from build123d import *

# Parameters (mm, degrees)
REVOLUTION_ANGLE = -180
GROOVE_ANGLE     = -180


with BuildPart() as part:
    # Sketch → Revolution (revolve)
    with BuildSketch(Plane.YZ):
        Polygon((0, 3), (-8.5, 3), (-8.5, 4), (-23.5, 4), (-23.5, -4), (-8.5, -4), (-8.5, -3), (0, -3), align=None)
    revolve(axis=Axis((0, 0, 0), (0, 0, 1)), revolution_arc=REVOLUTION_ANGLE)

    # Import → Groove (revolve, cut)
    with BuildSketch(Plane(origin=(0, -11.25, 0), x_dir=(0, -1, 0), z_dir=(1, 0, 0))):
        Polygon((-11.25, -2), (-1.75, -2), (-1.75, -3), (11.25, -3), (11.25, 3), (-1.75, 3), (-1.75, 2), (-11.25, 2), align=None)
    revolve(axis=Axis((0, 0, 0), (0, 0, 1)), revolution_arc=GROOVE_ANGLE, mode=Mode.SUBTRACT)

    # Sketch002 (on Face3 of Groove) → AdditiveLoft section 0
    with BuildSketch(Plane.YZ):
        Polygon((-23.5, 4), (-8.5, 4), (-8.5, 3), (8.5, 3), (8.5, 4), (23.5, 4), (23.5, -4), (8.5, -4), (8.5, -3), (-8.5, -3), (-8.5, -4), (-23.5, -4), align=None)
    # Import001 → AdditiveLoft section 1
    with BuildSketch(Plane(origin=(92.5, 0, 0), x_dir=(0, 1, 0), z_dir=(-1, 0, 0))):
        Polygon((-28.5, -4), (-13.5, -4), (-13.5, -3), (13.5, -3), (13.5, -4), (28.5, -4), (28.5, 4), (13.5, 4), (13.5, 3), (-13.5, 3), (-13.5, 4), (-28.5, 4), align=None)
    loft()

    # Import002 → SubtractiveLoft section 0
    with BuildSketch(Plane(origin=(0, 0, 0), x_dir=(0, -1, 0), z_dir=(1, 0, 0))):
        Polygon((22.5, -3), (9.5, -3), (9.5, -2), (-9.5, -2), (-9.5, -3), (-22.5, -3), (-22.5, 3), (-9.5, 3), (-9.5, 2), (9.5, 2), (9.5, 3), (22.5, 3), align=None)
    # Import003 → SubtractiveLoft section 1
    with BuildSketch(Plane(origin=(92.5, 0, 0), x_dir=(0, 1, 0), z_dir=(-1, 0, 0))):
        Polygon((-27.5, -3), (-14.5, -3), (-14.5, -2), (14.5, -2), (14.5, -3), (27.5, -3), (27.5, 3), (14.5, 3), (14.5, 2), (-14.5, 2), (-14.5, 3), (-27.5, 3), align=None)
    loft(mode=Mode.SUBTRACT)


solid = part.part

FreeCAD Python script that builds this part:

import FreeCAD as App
import Part
import Sketcher
Q = App.Units.Quantity

doc = App.newDocument("Part")
body = doc.addObject("PartDesign::Body", "Body")

sketch1 = body.newObject("Sketcher::SketchObject", "Sketch")
sketch1.AttachmentSupport = (doc.getObject("YZ_Plane"), [""])
sketch1.MapMode = "FlatFace"
sketch1.addGeometry([
    Part.LineSegment(App.Vector(0, 3, 0), App.Vector(-8.5, 3, 0)),
    Part.LineSegment(App.Vector(-8.5, 3, 0), App.Vector(-8.5, 4, 0)),
    Part.LineSegment(App.Vector(-8.5, 4, 0), App.Vector(-23.5, 4, 0)),
    Part.LineSegment(App.Vector(-23.5, 4, 0), App.Vector(-23.5, -4, 0)),
    Part.LineSegment(App.Vector(-23.5, -4, 0), App.Vector(-8.5, -4, 0)),
    Part.LineSegment(App.Vector(-8.5, -4, 0), App.Vector(-8.5, -3, 0)),
    Part.LineSegment(App.Vector(-8.5, -3, 0), App.Vector(0, -3, 0)),
    Part.LineSegment(App.Vector(0, -3, 0), App.Vector(0, 3, 0)),
], False)
sketch1.addConstraint([
    Sketcher.Constraint("Coincident", 0, 2, 1, 1),
    Sketcher.Constraint("Coincident", 1, 2, 2, 1),
    Sketcher.Constraint("Coincident", 2, 2, 3, 1),
    Sketcher.Constraint("Coincident", 3, 2, 4, 1),
    Sketcher.Constraint("Coincident", 4, 2, 5, 1),
    Sketcher.Constraint("Coincident", 5, 2, 6, 1),
    Sketcher.Constraint("Coincident", 6, 2, 7, 1),
    Sketcher.Constraint("Coincident", 7, 2, 0, 1),
    Sketcher.Constraint("Horizontal", 0),
    Sketcher.Constraint("Vertical", 1),
    Sketcher.Constraint("Horizontal", 2),
    Sketcher.Constraint("Vertical", 3),
    Sketcher.Constraint("Horizontal", 4),
    Sketcher.Constraint("Vertical", 5),
    Sketcher.Constraint("Horizontal", 6),
    Sketcher.Constraint("Vertical", 7),
    Sketcher.Constraint("Symmetric", 6, 2, 7, 2, -1, 1),
    Sketcher.Constraint("Symmetric", 1, 2, 4, 2, -1),
    Sketcher.Constraint("DistanceX", 2, 2, 2, 1, Q("15 mm")),
    Sketcher.Constraint("DistanceY", 1, 1, 1, 2, Q("1 mm")),
    Sketcher.Constraint("DistanceY", 3, 2, 3, 1, Q("8 mm")),
    Sketcher.Constraint("DistanceX", 0, 2, 0, 1, Q("8.5 mm")),
])
revolution = body.newObject("PartDesign::Revolution", "Revolution")
revolution.Profile = sketch1
revolution.ReferenceAxis = (sketch1, ["V_Axis"])
revolution.Angle = 180
revolution.Reversed = True

sketch2 = body.newObject("Sketcher::SketchObject", "Sketch001")
sketch2.AttachmentSupport = (doc.getObject("YZ_Plane"), [""])
sketch2.MapMode = "FlatFace"
sketch2.addGeometry([
    Part.LineSegment(App.Vector(0, 2, 0), App.Vector(-9.5, 2, 0)),
    Part.LineSegment(App.Vector(-9.5, 2, 0), App.Vector(-9.5, 3, 0)),
    Part.LineSegment(App.Vector(-9.5, 3, 0), App.Vector(-22.5, 3, 0)),
    Part.LineSegment(App.Vector(-22.5, 3, 0), App.Vector(-22.5, -3, 0)),
    Part.LineSegment(App.Vector(-22.5, -3, 0), App.Vector(-9.5, -3, 0)),
    Part.LineSegment(App.Vector(-9.5, -3, 0), App.Vector(-9.5, -2, 0)),
    Part.LineSegment(App.Vector(-9.5, -2, 0), App.Vector(0, -2, 0)),
    Part.LineSegment(App.Vector(0, -2, 0), App.Vector(0, 2, 0)),
], False)
sketch2.addConstraint([
    Sketcher.Constraint("Coincident", 0, 2, 1, 1),
    Sketcher.Constraint("Coincident", 1, 2, 2, 1),
    Sketcher.Constraint("Coincident", 2, 2, 3, 1),
    Sketcher.Constraint("Coincident", 3, 2, 4, 1),
    Sketcher.Constraint("Coincident", 4, 2, 5, 1),
    Sketcher.Constraint("Coincident", 5, 2, 6, 1),
    Sketcher.Constraint("Coincident", 6, 2, 7, 1),
    Sketcher.Constraint("Coincident", 7, 2, 0, 1),
    Sketcher.Constraint("Horizontal", 0),
    Sketcher.Constraint("Vertical", 1),
    Sketcher.Constraint("Horizontal", 2),
    Sketcher.Constraint("Vertical", 3),
    Sketcher.Constraint("Horizontal", 4),
    Sketcher.Constraint("Vertical", 5),
    Sketcher.Constraint("Horizontal", 6),
    Sketcher.Constraint("Vertical", 7),
    Sketcher.Constraint("Symmetric", 6, 2, 7, 2, -1, 1),
    Sketcher.Constraint("Symmetric", 1, 2, 4, 2, -1),
    Sketcher.Constraint("DistanceX", 2, 2, 2, 1, Q("13 mm")),
    Sketcher.Constraint("DistanceY", 1, 1, 1, 2, Q("1 mm")),
    Sketcher.Constraint("DistanceY", 3, 2, 3, 1, Q("6 mm")),
    Sketcher.Constraint("DistanceX", 0, 2, 0, 1, Q("9.5 mm")),
])
groove = body.newObject("PartDesign::Groove", "Groove")
groove.Profile = sketch2
groove.ReferenceAxis = (sketch2, ["V_Axis"])
groove.Angle = 180
groove.Reversed = True

sketch3 = body.newObject("Sketcher::SketchObject", "Sketch002")
sketch3.AttachmentSupport = (doc.getObject("YZ_Plane"), [""])
sketch3.MapMode = "FlatFace"
sketch3.addGeometry([
    Part.LineSegment(App.Vector(-8.5, 4, 0), App.Vector(-23.5, 4, 0)),
    Part.LineSegment(App.Vector(-23.5, 4, 0), App.Vector(-23.5, -4, 0)),
    Part.LineSegment(App.Vector(-23.5, -4, 0), App.Vector(-8.5, -4, 0)),
    Part.LineSegment(App.Vector(-8.5, -4, 0), App.Vector(-8.5, -3, 0)),
    Part.LineSegment(App.Vector(-8.5, -3, 0), App.Vector(8.5, -3, 0)),
    Part.LineSegment(App.Vector(8.5, -3, 0), App.Vector(8.5, -4, 0)),
    Part.LineSegment(App.Vector(8.5, -4, 0), App.Vector(23.5, -4, 0)),
    Part.LineSegment(App.Vector(23.5, -4, 0), App.Vector(23.5, 4, 0)),
    Part.LineSegment(App.Vector(23.5, 4, 0), App.Vector(8.5, 4, 0)),
    Part.LineSegment(App.Vector(8.5, 4, 0), App.Vector(8.5, 3, 0)),
    Part.LineSegment(App.Vector(8.5, 3, 0), App.Vector(-8.5, 3, 0)),
    Part.LineSegment(App.Vector(-8.5, 3, 0), App.Vector(-8.5, 4, 0)),
], False)
sketch3.addConstraint([
    Sketcher.Constraint("Coincident", 0, 2, 1, 1),
    Sketcher.Constraint("Coincident", 1, 2, 2, 1),
    Sketcher.Constraint("Coincident", 2, 2, 3, 1),
    Sketcher.Constraint("Coincident", 3, 2, 4, 1),
    Sketcher.Constraint("Coincident", 4, 2, 5, 1),
    Sketcher.Constraint("Coincident", 5, 2, 6, 1),
    Sketcher.Constraint("Coincident", 6, 2, 7, 1),
    Sketcher.Constraint("Coincident", 7, 2, 8, 1),
    Sketcher.Constraint("Coincident", 8, 2, 9, 1),
    Sketcher.Constraint("Coincident", 9, 2, 10, 1),
    Sketcher.Constraint("Coincident", 10, 2, 11, 1),
    Sketcher.Constraint("Coincident", 11, 2, 0, 1),
    Sketcher.Constraint("Horizontal", 0),
    Sketcher.Constraint("Vertical", 1),
    Sketcher.Constraint("Horizontal", 2),
    Sketcher.Constraint("Vertical", 3),
    Sketcher.Constraint("Horizontal", 4),
    Sketcher.Constraint("Vertical", 5),
    Sketcher.Constraint("Horizontal", 6),
    Sketcher.Constraint("Vertical", 7),
    Sketcher.Constraint("Horizontal", 8),
    Sketcher.Constraint("Vertical", 9),
    Sketcher.Constraint("Horizontal", 10),
    Sketcher.Constraint("Vertical", 11),
    Sketcher.Constraint("Symmetric", 0, 2, 6, 2, -1, 1),
    Sketcher.Constraint("Symmetric", 2, 2, 8, 2, -1, 1),
    Sketcher.Constraint("Symmetric", 4, 2, 10, 2, -1, 1),
    Sketcher.Constraint("Symmetric", 2, 2, 5, 2, -2),
    Sketcher.Constraint("DistanceX", 0, 2, 0, 1, Q("15 mm")),
    Sketcher.Constraint("DistanceX", 4, 1, 4, 2, Q("17 mm")),
    Sketcher.Constraint("DistanceY", 1, 2, 1, 1, Q("8 mm")),
    Sketcher.Constraint("DistanceY", 3, 1, 3, 2, Q("1 mm")),
])

sketch4 = body.newObject("Sketcher::SketchObject", "Sketch003")
sketch4.AttachmentSupport = (doc.getObject("YZ_Plane"), [""])
sketch4.MapMode = "FlatFace"
sketch4.AttachmentOffset = App.Placement(App.Vector(0, 0, 92.5), App.Rotation())
sketch4.addGeometry([
    Part.LineSegment(App.Vector(-28.5, 4, 0), App.Vector(-13.5, 4, 0)),
    Part.LineSegment(App.Vector(-13.5, 4, 0), App.Vector(-13.5, 3, 0)),
    Part.LineSegment(App.Vector(-13.5, 3, 0), App.Vector(13.5, 3, 0)),
    Part.LineSegment(App.Vector(13.5, 3, 0), App.Vector(13.5, 4, 0)),
    Part.LineSegment(App.Vector(13.5, 4, 0), App.Vector(28.5, 4, 0)),
    Part.LineSegment(App.Vector(28.5, 4, 0), App.Vector(28.5, -4, 0)),
    Part.LineSegment(App.Vector(28.5, -4, 0), App.Vector(13.5, -4, 0)),
    Part.LineSegment(App.Vector(13.5, -4, 0), App.Vector(13.5, -3, 0)),
    Part.LineSegment(App.Vector(13.5, -3, 0), App.Vector(-13.5, -3, 0)),
    Part.LineSegment(App.Vector(-13.5, -3, 0), App.Vector(-13.5, -4, 0)),
    Part.LineSegment(App.Vector(-13.5, -4, 0), App.Vector(-28.5, -4, 0)),
    Part.LineSegment(App.Vector(-28.5, -4, 0), App.Vector(-28.5, 4, 0)),
], False)
sketch4.addConstraint([
    Sketcher.Constraint("Coincident", 0, 2, 1, 1),
    Sketcher.Constraint("Coincident", 1, 2, 2, 1),
    Sketcher.Constraint("Coincident", 2, 2, 3, 1),
    Sketcher.Constraint("Coincident", 3, 2, 4, 1),
    Sketcher.Constraint("Coincident", 4, 2, 5, 1),
    Sketcher.Constraint("Coincident", 5, 2, 6, 1),
    Sketcher.Constraint("Coincident", 6, 2, 7, 1),
    Sketcher.Constraint("Coincident", 7, 2, 8, 1),
    Sketcher.Constraint("Coincident", 8, 2, 9, 1),
    Sketcher.Constraint("Coincident", 9, 2, 10, 1),
    Sketcher.Constraint("Coincident", 10, 2, 11, 1),
    Sketcher.Constraint("Coincident", 11, 2, 0, 1),
    Sketcher.Constraint("Horizontal", 0),
    Sketcher.Constraint("Vertical", 1),
    Sketcher.Constraint("Horizontal", 2),
    Sketcher.Constraint("Vertical", 3),
    Sketcher.Constraint("Horizontal", 4),
    Sketcher.Constraint("Vertical", 5),
    Sketcher.Constraint("Horizontal", 6),
    Sketcher.Constraint("Vertical", 7),
    Sketcher.Constraint("Horizontal", 8),
    Sketcher.Constraint("Vertical", 9),
    Sketcher.Constraint("Horizontal", 10),
    Sketcher.Constraint("Vertical", 11),
    Sketcher.Constraint("Symmetric", 0, 2, 6, 2, -1, 1),
    Sketcher.Constraint("Symmetric", 2, 2, 8, 2, -1, 1),
    Sketcher.Constraint("Symmetric", 4, 2, 10, 2, -1, 1),
    Sketcher.Constraint("Symmetric", 0, 2, 3, 2, -2),
    Sketcher.Constraint("DistanceX", 0, 1, 0, 2, Q("15 mm")),
    Sketcher.Constraint("DistanceX", 2, 1, 2, 2, Q("27 mm")),
    Sketcher.Constraint("DistanceY", 1, 2, 1, 1, Q("1 mm")),
    Sketcher.Constraint("DistanceY", 5, 2, 5, 1, Q("8 mm")),
])

additiveloft = body.newObject("PartDesign::AdditiveLoft", "AdditiveLoft")
additiveloft.Profile = sketch3
additiveloft.Sections = [sketch4]

sketch5 = body.newObject("Sketcher::SketchObject", "Sketch004")
sketch5.AttachmentSupport = (doc.getObject("YZ_Plane"), [""])
sketch5.MapMode = "FlatFace"
sketch5.addGeometry([
    Part.LineSegment(App.Vector(-9.5, 3, 0), App.Vector(-22.5, 3, 0)),
    Part.LineSegment(App.Vector(-22.5, 3, 0), App.Vector(-22.5, -3, 0)),
    Part.LineSegment(App.Vector(-22.5, -3, 0), App.Vector(-9.5, -3, 0)),
    Part.LineSegment(App.Vector(-9.5, -3, 0), App.Vector(-9.5, -2, 0)),
    Part.LineSegment(App.Vector(-9.5, -2, 0), App.Vector(9.5, -2, 0)),
    Part.LineSegment(App.Vector(9.5, -2, 0), App.Vector(9.5, -3, 0)),
    Part.LineSegment(App.Vector(9.5, -3, 0), App.Vector(22.5, -3, 0)),
    Part.LineSegment(App.Vector(22.5, -3, 0), App.Vector(22.5, 3, 0)),
    Part.LineSegment(App.Vector(22.5, 3, 0), App.Vector(9.5, 3, 0)),
    Part.LineSegment(App.Vector(9.5, 3, 0), App.Vector(9.5, 2, 0)),
    Part.LineSegment(App.Vector(9.5, 2, 0), App.Vector(-9.5, 2, 0)),
    Part.LineSegment(App.Vector(-9.5, 2, 0), App.Vector(-9.5, 3, 0)),
], False)
sketch5.addConstraint([
    Sketcher.Constraint("Coincident", 0, 2, 1, 1),
    Sketcher.Constraint("Coincident", 1, 2, 2, 1),
    Sketcher.Constraint("Coincident", 2, 2, 3, 1),
    Sketcher.Constraint("Coincident", 3, 2, 4, 1),
    Sketcher.Constraint("Coincident", 4, 2, 5, 1),
    Sketcher.Constraint("Coincident", 5, 2, 6, 1),
    Sketcher.Constraint("Coincident", 6, 2, 7, 1),
    Sketcher.Constraint("Coincident", 7, 2, 8, 1),
    Sketcher.Constraint("Coincident", 8, 2, 9, 1),
    Sketcher.Constraint("Coincident", 9, 2, 10, 1),
    Sketcher.Constraint("Coincident", 10, 2, 11, 1),
    Sketcher.Constraint("Coincident", 11, 2, 0, 1),
    Sketcher.Constraint("Horizontal", 0),
    Sketcher.Constraint("Vertical", 1),
    Sketcher.Constraint("Horizontal", 2),
    Sketcher.Constraint("Vertical", 3),
    Sketcher.Constraint("Horizontal", 4),
    Sketcher.Constraint("Vertical", 5),
    Sketcher.Constraint("Horizontal", 6),
    Sketcher.Constraint("Vertical", 7),
    Sketcher.Constraint("Horizontal", 8),
    Sketcher.Constraint("Vertical", 9),
    Sketcher.Constraint("Horizontal", 10),
    Sketcher.Constraint("Vertical", 11),
    Sketcher.Constraint("Symmetric", 0, 2, 6, 2, -1, 1),
    Sketcher.Constraint("Symmetric", 2, 2, 8, 2, -1, 1),
    Sketcher.Constraint("Symmetric", 4, 2, 10, 2, -1, 1),
    Sketcher.Constraint("Symmetric", 2, 2, 5, 2, -2),
    Sketcher.Constraint("DistanceX", 0, 2, 0, 1, Q("13 mm")),
    Sketcher.Constraint("DistanceX", 4, 1, 4, 2, Q("19 mm")),
    Sketcher.Constraint("DistanceY", 1, 2, 1, 1, Q("6 mm")),
    Sketcher.Constraint("DistanceY", 3, 1, 3, 2, Q("1 mm")),
])

sketch6 = body.newObject("Sketcher::SketchObject", "Sketch005")
sketch6.AttachmentSupport = (doc.getObject("YZ_Plane"), [""])
sketch6.MapMode = "FlatFace"
sketch6.AttachmentOffset = App.Placement(App.Vector(0, 0, 92.5), App.Rotation())
sketch6.addGeometry([
    Part.LineSegment(App.Vector(-27.5, 3, 0), App.Vector(-14.5, 3, 0)),
    Part.LineSegment(App.Vector(-14.5, 3, 0), App.Vector(-14.5, 2, 0)),
    Part.LineSegment(App.Vector(-14.5, 2, 0), App.Vector(14.5, 2, 0)),
    Part.LineSegment(App.Vector(14.5, 2, 0), App.Vector(14.5, 3, 0)),
    Part.LineSegment(App.Vector(14.5, 3, 0), App.Vector(27.5, 3, 0)),
    Part.LineSegment(App.Vector(27.5, 3, 0), App.Vector(27.5, -3, 0)),
    Part.LineSegment(App.Vector(27.5, -3, 0), App.Vector(14.5, -3, 0)),
    Part.LineSegment(App.Vector(14.5, -3, 0), App.Vector(14.5, -2, 0)),
    Part.LineSegment(App.Vector(14.5, -2, 0), App.Vector(-14.5, -2, 0)),
    Part.LineSegment(App.Vector(-14.5, -2, 0), App.Vector(-14.5, -3, 0)),
    Part.LineSegment(App.Vector(-14.5, -3, 0), App.Vector(-27.5, -3, 0)),
    Part.LineSegment(App.Vector(-27.5, -3, 0), App.Vector(-27.5, 3, 0)),
], False)
sketch6.addConstraint([
    Sketcher.Constraint("Coincident", 0, 2, 1, 1),
    Sketcher.Constraint("Coincident", 1, 2, 2, 1),
    Sketcher.Constraint("Coincident", 2, 2, 3, 1),
    Sketcher.Constraint("Coincident", 3, 2, 4, 1),
    Sketcher.Constraint("Coincident", 4, 2, 5, 1),
    Sketcher.Constraint("Coincident", 5, 2, 6, 1),
    Sketcher.Constraint("Coincident", 6, 2, 7, 1),
    Sketcher.Constraint("Coincident", 7, 2, 8, 1),
    Sketcher.Constraint("Coincident", 8, 2, 9, 1),
    Sketcher.Constraint("Coincident", 9, 2, 10, 1),
    Sketcher.Constraint("Coincident", 10, 2, 11, 1),
    Sketcher.Constraint("Coincident", 11, 2, 0, 1),
    Sketcher.Constraint("Horizontal", 0),
    Sketcher.Constraint("Vertical", 1),
    Sketcher.Constraint("Horizontal", 2),
    Sketcher.Constraint("Vertical", 3),
    Sketcher.Constraint("Horizontal", 4),
    Sketcher.Constraint("Vertical", 5),
    Sketcher.Constraint("Horizontal", 6),
    Sketcher.Constraint("Vertical", 7),
    Sketcher.Constraint("Horizontal", 8),
    Sketcher.Constraint("Vertical", 9),
    Sketcher.Constraint("Horizontal", 10),
    Sketcher.Constraint("Vertical", 11),
    Sketcher.Constraint("Symmetric", 0, 2, 6, 2, -1, 1),
    Sketcher.Constraint("Symmetric", 2, 2, 8, 2, -1, 1),
    Sketcher.Constraint("Symmetric", 4, 2, 10, 2, -1, 1),
    Sketcher.Constraint("Symmetric", 0, 2, 3, 2, -2),
    Sketcher.Constraint("DistanceX", 0, 1, 0, 2, Q("13 mm")),
    Sketcher.Constraint("DistanceX", 2, 1, 2, 2, Q("29 mm")),
    Sketcher.Constraint("DistanceY", 1, 2, 1, 1, Q("1 mm")),
    Sketcher.Constraint("DistanceY", 5, 2, 5, 1, Q("6 mm")),
])

subtractiveloft = body.newObject("PartDesign::SubtractiveLoft", "SubtractiveLoft")
subtractiveloft.Profile = sketch5
subtractiveloft.Sections = [sketch6]

doc.recompute()
